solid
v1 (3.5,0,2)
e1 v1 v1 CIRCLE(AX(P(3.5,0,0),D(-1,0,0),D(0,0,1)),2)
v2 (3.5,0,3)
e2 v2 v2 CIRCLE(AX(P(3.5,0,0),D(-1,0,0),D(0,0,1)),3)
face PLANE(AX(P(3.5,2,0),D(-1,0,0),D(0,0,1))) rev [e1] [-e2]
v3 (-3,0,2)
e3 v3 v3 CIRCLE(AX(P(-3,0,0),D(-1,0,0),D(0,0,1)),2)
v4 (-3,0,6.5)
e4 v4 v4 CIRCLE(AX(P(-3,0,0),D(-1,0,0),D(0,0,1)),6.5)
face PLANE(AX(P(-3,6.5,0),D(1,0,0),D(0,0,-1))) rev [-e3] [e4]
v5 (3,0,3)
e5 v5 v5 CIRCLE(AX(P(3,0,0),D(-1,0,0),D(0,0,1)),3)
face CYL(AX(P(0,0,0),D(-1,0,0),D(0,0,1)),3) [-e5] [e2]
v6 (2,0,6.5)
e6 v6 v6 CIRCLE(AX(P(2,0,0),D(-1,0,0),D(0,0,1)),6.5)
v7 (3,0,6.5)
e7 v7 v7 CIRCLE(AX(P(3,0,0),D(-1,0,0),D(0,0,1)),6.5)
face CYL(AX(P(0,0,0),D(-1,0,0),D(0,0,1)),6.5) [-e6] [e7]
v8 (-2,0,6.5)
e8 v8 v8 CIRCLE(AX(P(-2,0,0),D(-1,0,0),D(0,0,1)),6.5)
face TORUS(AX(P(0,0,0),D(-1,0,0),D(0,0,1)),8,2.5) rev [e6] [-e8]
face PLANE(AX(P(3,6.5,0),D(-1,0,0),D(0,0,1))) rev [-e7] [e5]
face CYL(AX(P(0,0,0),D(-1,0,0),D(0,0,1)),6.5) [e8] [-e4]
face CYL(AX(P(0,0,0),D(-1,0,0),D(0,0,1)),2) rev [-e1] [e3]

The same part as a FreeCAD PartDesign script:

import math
import FreeCAD as App
import Part
import Sketcher
Q = App.Units.Quantity

doc = App.newDocument("Part")
body = doc.addObject("PartDesign::Body", "Body")

sketch1 = doc.addObject("Sketcher::SketchObject", "Sketch")
body.addObject(sketch1)
sketch1.AttachmentSupport = (doc.XY_Plane, [""])
sketch1.MapMode = "FlatFace"
sketch1.addGeometry(Part.LineSegment(App.Vector(3, 6.5, 0), App.Vector(2, 6.5, 0)), False)
sketch1.addGeometry(Part.ArcOfCircle(Part.Circle(App.Vector(0, 8, 0), App.Vector(0, 0, 1), 2.5), math.radians(-143), math.radians(-37)), False)
sketch1.addGeometry(Part.LineSegment(App.Vector(-2, 6.5, 0), App.Vector(-3, 6.5, 0)), False)
sketch1.addGeometry(Part.LineSegment(App.Vector(-3, 6.5, 0), App.Vector(-3, 2, 0)), False)
sketch1.addGeometry(Part.LineSegment(App.Vector(-3, 2, 0), App.Vector(3.5, 2, 0)), False)
sketch1.addGeometry(Part.LineSegment(App.Vector(3.5, 2, 0), App.Vector(3.5, 3, 0)), False)
sketch1.addGeometry(Part.LineSegment(App.Vector(3.5, 3, 0), App.Vector(3, 3, 0)), False)
sketch1.addGeometry(Part.LineSegment(App.Vector(3, 3, 0), App.Vector(3, 6.5, 0)), False)
sketch1.addConstraint(Sketcher.Constraint("Coincident", 0, 2, 1, 2))
sketch1.addConstraint(Sketcher.Constraint("Coincident", 1, 1, 2, 1))
sketch1.addConstraint(Sketcher.Constraint("Coincident", 2, 2, 3, 1))
sketch1.addConstraint(Sketcher.Constraint("Coincident", 3, 2, 4, 1))
sketch1.addConstraint(Sketcher.Constraint("Coincident", 4, 2, 5, 1))
sketch1.addConstraint(Sketcher.Constraint("Coincident", 5, 2, 6, 1))
sketch1.addConstraint(Sketcher.Constraint("Coincident", 6, 2, 7, 1))
sketch1.addConstraint(Sketcher.Constraint("Coincident", 7, 2, 0, 1))
sketch1.addConstraint(Sketcher.Constraint("Horizontal", 0))
sketch1.addConstraint(Sketcher.Constraint("Horizontal", 2))
sketch1.addConstraint(Sketcher.Constraint("Vertical", 3))
sketch1.addConstraint(Sketcher.Constraint("Horizontal", 4))
sketch1.addConstraint(Sketcher.Constraint("Vertical", 5))
sketch1.addConstraint(Sketcher.Constraint("Horizontal", 6))
sketch1.addConstraint(Sketcher.Constraint("Vertical", 7))
sketch1.addConstraint(Sketcher.Constraint("Symmetric", 0, 2, 1, 1, -2))
sketch1.addConstraint(Sketcher.Constraint("Equal", 0, 2))
sketch1.addConstraint(Sketcher.Constraint("Equal", 2, 5))
sketch1.addConstraint(Sketcher.Constraint("Radius", 1, Q("2.5 mm")))
sketch1.addConstraint(Sketcher.Constraint("DistanceX", 0, 2, 0, 1, Q("1 mm")))
sketch1.addConstraint(Sketcher.Constraint("DistanceX", 4, 1, 4, 2, Q("6.5 mm")))
sketch1.addConstraint(Sketcher.Constraint("DistanceX", 6, 2, 6, 1, Q("0.5 mm")))
sketch1.addConstraint(Sketcher.Constraint("DistanceY", 3, 2, 3, 1, Q("4.5 mm")))
sketch1.addConstraint(Sketcher.Constraint("DistanceY", -1, 1, 1, 3, Q("8 mm")))
revolution = doc.addObject("PartDesign::Revolution", "Revolution")
body.addObject(revolution)
revolution.Profile = sketch1
revolution.ReferenceAxis = (sketch1, ["H_Axis"])
revolution.Angle = 360

doc.recompute()
